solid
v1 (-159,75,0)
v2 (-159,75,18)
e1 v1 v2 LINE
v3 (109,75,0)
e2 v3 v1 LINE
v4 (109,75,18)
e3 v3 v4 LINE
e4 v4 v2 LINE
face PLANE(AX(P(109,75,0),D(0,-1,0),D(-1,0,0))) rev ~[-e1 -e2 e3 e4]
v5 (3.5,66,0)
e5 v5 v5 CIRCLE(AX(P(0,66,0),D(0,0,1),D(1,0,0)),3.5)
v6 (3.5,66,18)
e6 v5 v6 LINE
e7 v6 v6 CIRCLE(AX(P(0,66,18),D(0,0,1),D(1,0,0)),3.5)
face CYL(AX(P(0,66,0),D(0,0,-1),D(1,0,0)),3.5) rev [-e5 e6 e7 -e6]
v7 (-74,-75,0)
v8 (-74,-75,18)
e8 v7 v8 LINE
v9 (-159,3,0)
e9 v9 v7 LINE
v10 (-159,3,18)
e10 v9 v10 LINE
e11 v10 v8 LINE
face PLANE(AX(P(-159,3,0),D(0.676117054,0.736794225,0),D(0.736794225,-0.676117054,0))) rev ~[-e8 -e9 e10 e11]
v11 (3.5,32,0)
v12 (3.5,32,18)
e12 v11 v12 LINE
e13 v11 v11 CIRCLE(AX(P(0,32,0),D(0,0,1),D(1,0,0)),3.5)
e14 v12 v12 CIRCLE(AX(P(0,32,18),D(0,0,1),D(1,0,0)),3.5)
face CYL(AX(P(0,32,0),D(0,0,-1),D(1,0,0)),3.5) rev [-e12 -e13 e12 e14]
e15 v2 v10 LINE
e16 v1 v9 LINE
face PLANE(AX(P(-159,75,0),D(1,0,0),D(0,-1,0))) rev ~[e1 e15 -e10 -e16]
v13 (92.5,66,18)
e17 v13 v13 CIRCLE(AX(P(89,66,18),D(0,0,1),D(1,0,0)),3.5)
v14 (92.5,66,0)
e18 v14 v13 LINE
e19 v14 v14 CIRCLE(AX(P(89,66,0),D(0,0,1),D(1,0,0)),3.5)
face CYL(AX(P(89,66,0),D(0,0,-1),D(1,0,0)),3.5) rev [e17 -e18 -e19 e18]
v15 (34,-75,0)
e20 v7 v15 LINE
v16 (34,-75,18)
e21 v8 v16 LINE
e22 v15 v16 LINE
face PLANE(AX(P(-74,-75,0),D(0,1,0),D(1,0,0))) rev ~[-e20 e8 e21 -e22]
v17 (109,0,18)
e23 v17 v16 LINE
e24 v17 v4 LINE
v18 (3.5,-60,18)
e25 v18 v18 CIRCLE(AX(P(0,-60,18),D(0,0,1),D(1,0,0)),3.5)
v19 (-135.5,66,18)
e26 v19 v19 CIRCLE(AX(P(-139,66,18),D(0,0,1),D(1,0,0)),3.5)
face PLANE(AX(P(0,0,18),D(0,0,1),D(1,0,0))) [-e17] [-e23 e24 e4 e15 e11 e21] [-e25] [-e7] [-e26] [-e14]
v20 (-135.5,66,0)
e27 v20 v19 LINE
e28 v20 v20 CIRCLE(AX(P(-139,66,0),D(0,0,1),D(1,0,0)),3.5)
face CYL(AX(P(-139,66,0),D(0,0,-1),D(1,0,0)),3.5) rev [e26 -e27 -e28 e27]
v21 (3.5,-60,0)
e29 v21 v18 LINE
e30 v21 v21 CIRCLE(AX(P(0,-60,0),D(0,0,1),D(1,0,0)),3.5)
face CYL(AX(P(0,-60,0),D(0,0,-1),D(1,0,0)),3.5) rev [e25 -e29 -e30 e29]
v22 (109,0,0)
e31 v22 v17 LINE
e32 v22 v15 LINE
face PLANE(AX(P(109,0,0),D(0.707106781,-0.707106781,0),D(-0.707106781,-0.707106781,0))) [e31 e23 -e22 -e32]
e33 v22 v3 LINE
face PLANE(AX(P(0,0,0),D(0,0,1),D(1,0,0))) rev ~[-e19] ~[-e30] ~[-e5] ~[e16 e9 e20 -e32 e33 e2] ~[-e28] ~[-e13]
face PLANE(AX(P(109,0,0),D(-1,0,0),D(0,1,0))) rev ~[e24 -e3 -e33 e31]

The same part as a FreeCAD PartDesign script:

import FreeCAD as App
import Part
import Sketcher
from FreeCAD import Vector

doc = App.newDocument("Part")
body = doc.addObject("PartDesign::Body", "Body")

sketch1 = body.newObject("Sketcher::SketchObject", "Sketch")
sketch1.AttachmentSupport = (doc.getObject("XY_Plane"), [""])
sketch1.MapMode = "FlatFace"
sketch1.addGeometry([
    Part.LineSegment(Vector(109, 0, 0), Vector(109, 75, 0)),
    Part.LineSegment(Vector(109, 75, 0), Vector(-159, 75, 0)),
    Part.LineSegment(Vector(-159, 75, 0), Vector(-159, 3, 0)),
    Part.LineSegment(Vector(-159, 3, 0), Vector(-74, -75, 0)),
    Part.LineSegment(Vector(-74, -75, 0), Vector(34, -75, 0)),
    Part.LineSegment(Vector(34, -75, 0), Vector(109, 0, 0)),
    Part.Circle(Vector(0, -60, 0), Vector(0, 0, 1), 3.5),
    Part.Circle(Vector(-139, 66, 0), Vector(0, 0, 1), 3.5),
    Part.Circle(Vector(0, 32, 0), Vector(0, 0, 1), 3.5),
    Part.Circle(Vector(0, 66, 0), Vector(0, 0, 1), 3.5),
    Part.Circle(Vector(89, 66, 0), Vector(0, 0, 1), 3.5),
], False)
sketch1.addConstraint([
    Sketcher.Constraint("Coincident", 0, 2, 1, 1),
    Sketcher.Constraint("Coincident", 1, 2, 2, 1),
    Sketcher.Constraint("Coincident", 2, 2, 3, 1),
    Sketcher.Constraint("Coincident", 3, 2, 4, 1),
    Sketcher.Constraint("Coincident", 4, 2, 5, 1),
    Sketcher.Constraint("Coincident", 5, 2, 0, 1),
    Sketcher.Constraint("Vertical", 0),
    Sketcher.Constraint("Horizontal", 1),
    Sketcher.Constraint("Vertical", 2),
    Sketcher.Constraint("Horizontal", 4),
    Sketcher.Constraint("Equal", 6, 7),
    Sketcher.Constraint("Equal", 7, 8),
    Sketcher.Constraint("Equal", 8, 9),
    Sketcher.Constraint("Equal", 9, 10),
    Sketcher.Constraint("PointOnObject", 6, 3, -2),
    Sketcher.Constraint("PointOnObject", 8, 3, -2),
    Sketcher.Constraint("PointOnObject", 9, 3, -2),
    Sketcher.Constraint("PointOnObject", 5, 2, -1),
    Sketcher.Constraint("Horizontal", 7, 3, 9, 3),
    Sketcher.Constraint("Horizontal", 9, 3, 10, 3),
    Sketcher.Constraint("Diameter", 6, 7.0),
    Sketcher.Constraint("DistanceX", 1, 2, 1, 1, 268.0),
    Sketcher.Constraint("DistanceY", 0, 1, 0, 2, 75.0),
    Sketcher.Constraint("DistanceX", 7, 3, -1, 1, 139.0),
    Sketcher.Constraint("DistanceX", -1, 1, 10, 3, 89.0),
    Sketcher.Constraint("DistanceX", -1, 1, 0, 2, 109.0),
    Sketcher.Constraint("DistanceY", 3, 2, -1, 1, 75.0),
    Sketcher.Constraint("DistanceX", -1, 1, 4, 2, 34.0),
    Sketcher.Constraint("DistanceY", 6, 3, 8, 3, 92.0),
    Sketcher.Constraint("DistanceY", 8, 3, 7, 3, 34.0),
    Sketcher.Constraint("DistanceY", 10, 3, 0, 2, 9.0),
    Sketcher.Constraint("DistanceX", 2, 2, 3, 2, 85.0),
    Sketcher.Constraint("DistanceY", 3, 2, 2, 2, 78.0),
])
pad1 = body.newObject("PartDesign::Pad", "Pad")
pad1.Profile = sketch1
pad1.Length = 18

doc.recompute()
